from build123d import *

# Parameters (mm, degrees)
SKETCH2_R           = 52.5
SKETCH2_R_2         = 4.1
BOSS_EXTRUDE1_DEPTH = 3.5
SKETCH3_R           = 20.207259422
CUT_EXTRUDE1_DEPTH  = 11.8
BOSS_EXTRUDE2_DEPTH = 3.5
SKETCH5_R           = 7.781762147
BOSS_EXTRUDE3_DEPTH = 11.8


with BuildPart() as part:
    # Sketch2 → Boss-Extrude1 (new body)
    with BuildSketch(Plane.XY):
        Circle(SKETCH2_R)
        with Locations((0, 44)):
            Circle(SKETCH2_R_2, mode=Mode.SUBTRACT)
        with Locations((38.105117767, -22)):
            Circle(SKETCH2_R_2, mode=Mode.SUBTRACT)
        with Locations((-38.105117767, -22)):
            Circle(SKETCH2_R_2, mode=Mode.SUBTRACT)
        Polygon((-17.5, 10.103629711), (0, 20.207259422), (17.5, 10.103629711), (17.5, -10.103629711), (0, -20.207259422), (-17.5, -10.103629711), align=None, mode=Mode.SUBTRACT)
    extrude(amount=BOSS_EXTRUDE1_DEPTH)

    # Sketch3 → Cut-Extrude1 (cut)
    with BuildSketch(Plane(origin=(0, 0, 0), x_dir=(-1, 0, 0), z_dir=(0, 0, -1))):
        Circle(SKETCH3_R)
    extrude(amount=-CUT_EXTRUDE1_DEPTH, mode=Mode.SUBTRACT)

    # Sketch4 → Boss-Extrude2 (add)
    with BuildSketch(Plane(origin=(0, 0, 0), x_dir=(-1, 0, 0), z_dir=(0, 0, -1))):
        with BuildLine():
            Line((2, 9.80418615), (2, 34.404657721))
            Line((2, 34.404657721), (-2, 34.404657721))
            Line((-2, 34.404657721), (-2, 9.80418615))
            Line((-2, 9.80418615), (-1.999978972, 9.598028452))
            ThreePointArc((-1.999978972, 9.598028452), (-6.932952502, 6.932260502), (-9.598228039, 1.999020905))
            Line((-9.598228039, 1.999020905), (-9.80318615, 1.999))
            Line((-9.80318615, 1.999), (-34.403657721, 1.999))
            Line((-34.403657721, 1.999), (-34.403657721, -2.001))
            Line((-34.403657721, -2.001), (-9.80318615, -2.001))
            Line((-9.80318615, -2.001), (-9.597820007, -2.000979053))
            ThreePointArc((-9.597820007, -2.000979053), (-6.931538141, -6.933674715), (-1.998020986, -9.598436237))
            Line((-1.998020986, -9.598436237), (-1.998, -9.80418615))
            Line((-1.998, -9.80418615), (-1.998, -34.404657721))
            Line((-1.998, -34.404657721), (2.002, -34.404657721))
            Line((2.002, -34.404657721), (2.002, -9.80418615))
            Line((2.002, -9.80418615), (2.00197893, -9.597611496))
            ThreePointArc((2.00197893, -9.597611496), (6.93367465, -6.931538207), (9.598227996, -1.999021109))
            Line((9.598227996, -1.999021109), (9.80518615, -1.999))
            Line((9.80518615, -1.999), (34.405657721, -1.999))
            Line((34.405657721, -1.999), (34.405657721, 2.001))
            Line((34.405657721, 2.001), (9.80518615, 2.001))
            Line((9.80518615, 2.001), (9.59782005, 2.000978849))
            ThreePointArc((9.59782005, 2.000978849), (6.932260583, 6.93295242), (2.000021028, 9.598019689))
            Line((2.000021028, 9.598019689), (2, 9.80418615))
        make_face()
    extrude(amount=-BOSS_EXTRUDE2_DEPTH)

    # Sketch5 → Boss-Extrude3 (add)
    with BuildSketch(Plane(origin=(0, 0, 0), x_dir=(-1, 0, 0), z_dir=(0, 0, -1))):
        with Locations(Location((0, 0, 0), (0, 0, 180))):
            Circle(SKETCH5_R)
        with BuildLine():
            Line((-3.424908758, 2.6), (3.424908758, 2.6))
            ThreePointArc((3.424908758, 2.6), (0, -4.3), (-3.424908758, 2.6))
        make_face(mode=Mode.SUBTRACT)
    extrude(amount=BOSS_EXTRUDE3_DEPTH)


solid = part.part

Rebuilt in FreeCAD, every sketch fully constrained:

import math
import FreeCAD as App
import Part
import Sketcher
Q = App.Units.Quantity


def add_polygon(sketch, points):
    """Adds a closed chain of lines whose ends are joined by coincident constraints."""
    first, n = sketch.GeometryCount, len(points)
    for a, b in zip(points, points[1:] + points[:1]):
        sketch.addGeometry(Part.LineSegment(App.Vector(*a, 0), App.Vector(*b, 0)), False)
    for i in range(n):
        sketch.addConstraint(Sketcher.Constraint("Coincident", first + i, 2, first + (i + 1) % n, 1))

doc = App.newDocument("Part")
body = doc.addObject("PartDesign::Body", "Body")

sketch1 = body.newObject("Sketcher::SketchObject", "Sketch")
sketch1.AttachmentSupport = (doc.getObject("XY_Plane"), [""])
sketch1.MapMode = "FlatFace"
sketch1.addGeometry(Part.Circle(App.Vector(0, 0, 0), App.Vector(0, 0, 1), 52.5), False)
sketch1.addGeometry(Part.Circle(App.Vector(-38.105118, -22, 0), App.Vector(0, 0, 1), 4.1), False)
sketch1.addGeometry(Part.Circle(App.Vector(38.105118, -22, 0), App.Vector(0, 0, 1), 4.1), False)
add_polygon(sketch1, [(-17.5, -10.10363), (-17.5, 10.10363), (0, 20.207259), (17.5, 10.10363), (17.5, -10.10363), (0, -20.207259)])
sketch1.addGeometry(Part.Circle(App.Vector(0, 44, 0), App.Vector(0, 0, 1), 4.1), False)
sketch1.addConstraint([
    Sketcher.Constraint("Vertical", 3),
    Sketcher.Constraint("Vertical", 6),
    Sketcher.Constraint("Coincident", 0, 3, -1, 1),
    Sketcher.Constraint("Equal", 1, 2),
    Sketcher.Constraint("Equal", 2, 9),
    Sketcher.Constraint("Symmetric", 3, 2, 6, 2, -1, 1),
    Sketcher.Constraint("Symmetric", 4, 2, 7, 2, -1, 1),
    Sketcher.Constraint("Symmetric", 1, 3, 2, 3, -2),
    Sketcher.Constraint("PointOnObject", 9, 3, -2),
    Sketcher.Constraint("PointOnObject", 4, 2, -2),
    Sketcher.Constraint("Parallel", 5, 8),
    Sketcher.Constraint("Horizontal", 3, 2, 5, 2),
    Sketcher.Constraint("Diameter", 0, Q("105 mm")),
    Sketcher.Constraint("Diameter", 1, Q("8.2 mm")),
    Sketcher.Constraint("Angle", 4, Q("30 deg")),
    Sketcher.Constraint("DistanceY", 1, 3, -1, 1, Q("22 mm")),
    Sketcher.Constraint("DistanceY", -1, 1, 9, 3, Q("44 mm")),
    Sketcher.Constraint("DistanceX", 3, 2, 5, 2, Q("35 mm")),
    Sketcher.Constraint("DistanceY", 3, 1, 3, 2, Q("20.207259 mm")),
    Sketcher.Constraint("DistanceX", 1, 3, -1, 1, Q("38.105118 mm")),
])
pad1 = body.newObject("PartDesign::Pad", "Pad")
pad1.Profile = sketch1
pad1.Length = 3.5

sketch2 = body.newObject("Sketcher::SketchObject", "Sketch001")
sketch2.AttachmentSupport = (doc.getObject("XY_Plane"), [""])
sketch2.MapMode = "FlatFace"
sketch2.addGeometry(Part.Circle(App.Vector(0, 0, 0), App.Vector(0, 0, 1), 20.207259), False)
sketch2.addConstraint([
    Sketcher.Constraint("Coincident", 0, 3, -1, 1),
    Sketcher.Constraint("Diameter", 0, Q("40.414519 mm")),
])
pocket1 = body.newObject("PartDesign::Pocket", "Pocket")
pocket1.Profile = sketch2
pocket1.Length = 11.8
pocket1.Reversed = True

sketch3 = body.newObject("Sketcher::SketchObject", "Sketch002")
sketch3.AttachmentSupport = (doc.getObject("XY_Plane"), [""])
sketch3.MapMode = "FlatFace"
sketch3.addGeometry([
    Part.LineSegment(App.Vector(-2, 9.804186, 0), App.Vector(-2, 34.404658, 0)),
    Part.LineSegment(App.Vector(-2, 34.404658, 0), App.Vector(2, 34.404658, 0)),
    Part.LineSegment(App.Vector(2, 34.404658, 0), App.Vector(2, 9.804186, 0)),
    Part.LineSegment(App.Vector(2, 9.804186, 0), App.Vector(1.999979, 9.598028, 0)),
    Part.ArcOfCircle(Part.Circle(App.Vector(0, 0, 0), App.Vector(0, 0, 1), 9.804186), math.radians(11.764799), math.radians(78.229481)),
    Part.LineSegment(App.Vector(9.598228, 1.999021, 0), App.Vector(9.803186, 1.999, 0)),
    Part.LineSegment(App.Vector(9.803186, 1.999, 0), App.Vector(34.403658, 1.999, 0)),
    Part.LineSegment(App.Vector(34.403658, 1.999, 0), App.Vector(34.403658, -2.001, 0)),
    Part.LineSegment(App.Vector(34.403658, -2.001, 0), App.Vector(9.803186, -2.001, 0)),
    Part.LineSegment(App.Vector(9.803186, -2.001, 0), App.Vector(9.59782, -2.000979, 0)),
    Part.ArcOfCircle(Part.Circle(App.Vector(0, 0, 0), App.Vector(0, 0, 1), 9.804186), math.radians(-78.241169), math.radians(-11.776489)),
    Part.LineSegment(App.Vector(1.998021, -9.598436, 0), App.Vector(1.998, -9.804186, 0)),
    Part.LineSegment(App.Vector(1.998, -9.804186, 0), App.Vector(1.998, -34.404658, 0)),
    Part.LineSegment(App.Vector(1.998, -34.404658, 0), App.Vector(-2.002, -34.404658, 0)),
    Part.LineSegment(App.Vector(-2.002, -34.404658, 0), App.Vector(-2.002, -9.804186, 0)),
    Part.LineSegment(App.Vector(-2.002, -9.804186, 0), App.Vector(-2.001979, -9.597611, 0)),
    Part.ArcOfCircle(Part.Circle(App.Vector(0, 0, 0), App.Vector(0, 0, 1), 9.804186), math.radians(-168.235199), math.radians(-101.782458)),
    Part.LineSegment(App.Vector(-9.598228, -1.999021, 0), App.Vector(-9.805186, -1.999, 0)),
    Part.LineSegment(App.Vector(-9.805186, -1.999, 0), App.Vector(-34.405658, -1.999, 0)),
    Part.LineSegment(App.Vector(-34.405658, -1.999, 0), App.Vector(-34.405658, 2.001, 0)),
    Part.LineSegment(App.Vector(-34.405658, 2.001, 0), App.Vector(-9.805186, 2.001, 0)),
    Part.LineSegment(App.Vector(-9.805186, 2.001, 0), App.Vector(-9.59782, 2.000979, 0)),
    Part.ArcOfCircle(Part.Circle(App.Vector(0, 0, 0), App.Vector(0, 0, 1), 9.804186), math.radians(101.77077), math.radians(168.223513)),
    Part.LineSegment(App.Vector(-2.000021, 9.59802, 0), App.Vector(-2, 9.804186, 0)),
], False)
sketch3.addConstraint([
    Sketcher.Constraint("Coincident", 0, 2, 1, 1),
    Sketcher.Constraint("Coincident", 1, 2, 2, 1),
    Sketcher.Constraint("Coincident", 2, 2, 3, 1),
    Sketcher.Constraint("Coincident", 3, 2, 4, 2),
    Sketcher.Constraint("Coincident", 4, 1, 5, 1),
    Sketcher.Constraint("Coincident", 5, 2, 6, 1),
    Sketcher.Constraint("Coincident", 6, 2, 7, 1),
    Sketcher.Constraint("Coincident", 7, 2, 8, 1),
    Sketcher.Constraint("Coincident", 8, 2, 9, 1),
    Sketcher.Constraint("Coincident", 9, 2, 10, 2),
    Sketcher.Constraint("Coincident", 10, 1, 11, 1),
    Sketcher.Constraint("Coincident", 11, 2, 12, 1),
    Sketcher.Constraint("Coincident", 12, 2, 13, 1),
    Sketcher.Constraint("Coincident", 13, 2, 14, 1),
    Sketcher.Constraint("Coincident", 14, 2, 15, 1),
    Sketcher.Constraint("Coincident", 15, 2, 16, 2),
    Sketcher.Constraint("Coincident", 16, 1, 17, 1),
    Sketcher.Constraint("Coincident", 17, 2, 18, 1),
    Sketcher.Constraint("Coincident", 18, 2, 19, 1),
    Sketcher.Constraint("Coincident", 19, 2, 20, 1),
    Sketcher.Constraint("Coincident", 20, 2, 21, 1),
    Sketcher.Constraint("Coincident", 21, 2, 22, 2),
    Sketcher.Constraint("Coincident", 22, 1, 23, 1),
    Sketcher.Constraint("Coincident", 23, 2, 0, 1),
    Sketcher.Constraint("Vertical", 0),
    Sketcher.Constraint("Horizontal", 1),
    Sketcher.Constraint("Vertical", 2),
    Sketcher.Constraint("Horizontal", 6),
    Sketcher.Constraint("Vertical", 7),
    Sketcher.Constraint("Horizontal", 8),
    Sketcher.Constraint("Vertical", 12),
    Sketcher.Constraint("Horizontal", 13),
    Sketcher.Constraint("Vertical", 14),
    Sketcher.Constraint("Horizontal", 18),
    Sketcher.Constraint("Vertical", 19),
    Sketcher.Constraint("Horizontal", 20),
    Sketcher.Constraint("Coincident", 4, 3, -1, 1),
    Sketcher.Constraint("Coincident", 10, 3, -1, 1),
    Sketcher.Constraint("Coincident", 16, 3, -1, 1),
    Sketcher.Constraint("Coincident", 22, 3, -1, 1),
    Sketcher.Constraint("Equal", 4, 10),
    Sketcher.Constraint("Equal", 10, 16),
    Sketcher.Constraint("Equal", 16, 22),
    Sketcher.Constraint("Symmetric", 2, 2, 23, 2, -2),
    Sketcher.Constraint("Perpendicular", 3, 5),
    Sketcher.Constraint("Parallel", 5, 9),
    Sketcher.Constraint("Perpendicular", 9, 11),
    Sketcher.Constraint("Parallel", 11, 15),
    Sketcher.Constraint("Perpendicular", 15, 17),
    Sketcher.Constraint("Parallel", 17, 21),
    Sketcher.Constraint("Perpendicular", 21, 23),
    Sketcher.Constraint("Horizontal", 11, 2, 14, 2),
    Sketcher.Constraint("Vertical", 5, 2, 8, 2),
    Sketcher.Constraint("Vertical", 17, 2, 20, 2),
    Sketcher.Constraint("Equal", 1, 13),
    Sketcher.Constraint("Equal", 8, 18),
    Sketcher.Constraint("Equal", 20, 0),
    Sketcher.Constraint("Equal", 13, 7),
    Sketcher.Constraint("Equal", 2, 12),
    Sketcher.Constraint("Equal", 7, 19),
    Sketcher.Constraint("DistanceX", 1, 1, 1, 2, Q("4 mm")),
    Sketcher.Constraint("DistanceY", -1, 1, 5, 2, Q("1.999 mm")),
    Sketcher.Constraint("DistanceX", -1, 1, 11, 2, Q("1.998 mm")),
    Sketcher.Constraint("DistanceY", 17, 2, -1, 1, Q("1.999 mm")),
    Sketcher.Constraint("Radius", 4, Q("9.804186 mm")),
    Sketcher.Constraint("DistanceX", 6, 1, 6, 2, Q("24.600472 mm")),
    Sketcher.Constraint("DistanceX", 10, 1, 9, 2, Q("7.599799 mm")),
    Sketcher.Constraint("Distance", 5, Q("0.204958 mm")),
    Sketcher.Constraint("Distance", 11, Q("0.20575 mm")),
    Sketcher.Constraint("Distance", 17, Q("0.206958 mm")),
    Sketcher.Constraint("Distance", 3, Q("0.206158 mm")),
])
pad2 = body.newObject("PartDesign::Pad", "Pad001")
pad2.Profile = sketch3
pad2.Length = 3.5

sketch4 = body.newObject("Sketcher::SketchObject", "Sketch003")
sketch4.AttachmentSupport = (doc.getObject("XY_Plane"), [""])
sketch4.MapMode = "FlatFace"
sketch4.addGeometry([
    Part.Circle(App.Vector(0, 0, 0), App.Vector(0, 0, 1), 7.781762),
    Part.ArcOfCircle(Part.Circle(App.Vector(0, 0, 0), App.Vector(0, 0, 1), 4.3), math.radians(142.796256), math.radians(397.203744)),
    Part.LineSegment(App.Vector(3.424909, 2.6, 0), App.Vector(-3.424909, 2.6, 0)),
], False)
sketch4.addConstraint([
    Sketcher.Constraint("Coincident", 1, 1, 2, 2),
    Sketcher.Constraint("Coincident", 2, 1, 1, 2),
    Sketcher.Constraint("Horizontal", 2),
    Sketcher.Constraint("Coincident", 0, 3, -1, 1),
    Sketcher.Constraint("Coincident", 1, 3, -1, 1),
    Sketcher.Constraint("Radius", 1, Q("4.3 mm")),
    Sketcher.Constraint("DistanceY", -1, 1, 1, 1, Q("2.6 mm")),
    Sketcher.Constraint("Diameter", 0, Q("15.563524 mm")),
])
pad3 = body.newObject("PartDesign::Pad", "Pad002")
pad3.Profile = sketch4
pad3.Length = 11.8
pad3.Reversed = True

doc.recompute()
